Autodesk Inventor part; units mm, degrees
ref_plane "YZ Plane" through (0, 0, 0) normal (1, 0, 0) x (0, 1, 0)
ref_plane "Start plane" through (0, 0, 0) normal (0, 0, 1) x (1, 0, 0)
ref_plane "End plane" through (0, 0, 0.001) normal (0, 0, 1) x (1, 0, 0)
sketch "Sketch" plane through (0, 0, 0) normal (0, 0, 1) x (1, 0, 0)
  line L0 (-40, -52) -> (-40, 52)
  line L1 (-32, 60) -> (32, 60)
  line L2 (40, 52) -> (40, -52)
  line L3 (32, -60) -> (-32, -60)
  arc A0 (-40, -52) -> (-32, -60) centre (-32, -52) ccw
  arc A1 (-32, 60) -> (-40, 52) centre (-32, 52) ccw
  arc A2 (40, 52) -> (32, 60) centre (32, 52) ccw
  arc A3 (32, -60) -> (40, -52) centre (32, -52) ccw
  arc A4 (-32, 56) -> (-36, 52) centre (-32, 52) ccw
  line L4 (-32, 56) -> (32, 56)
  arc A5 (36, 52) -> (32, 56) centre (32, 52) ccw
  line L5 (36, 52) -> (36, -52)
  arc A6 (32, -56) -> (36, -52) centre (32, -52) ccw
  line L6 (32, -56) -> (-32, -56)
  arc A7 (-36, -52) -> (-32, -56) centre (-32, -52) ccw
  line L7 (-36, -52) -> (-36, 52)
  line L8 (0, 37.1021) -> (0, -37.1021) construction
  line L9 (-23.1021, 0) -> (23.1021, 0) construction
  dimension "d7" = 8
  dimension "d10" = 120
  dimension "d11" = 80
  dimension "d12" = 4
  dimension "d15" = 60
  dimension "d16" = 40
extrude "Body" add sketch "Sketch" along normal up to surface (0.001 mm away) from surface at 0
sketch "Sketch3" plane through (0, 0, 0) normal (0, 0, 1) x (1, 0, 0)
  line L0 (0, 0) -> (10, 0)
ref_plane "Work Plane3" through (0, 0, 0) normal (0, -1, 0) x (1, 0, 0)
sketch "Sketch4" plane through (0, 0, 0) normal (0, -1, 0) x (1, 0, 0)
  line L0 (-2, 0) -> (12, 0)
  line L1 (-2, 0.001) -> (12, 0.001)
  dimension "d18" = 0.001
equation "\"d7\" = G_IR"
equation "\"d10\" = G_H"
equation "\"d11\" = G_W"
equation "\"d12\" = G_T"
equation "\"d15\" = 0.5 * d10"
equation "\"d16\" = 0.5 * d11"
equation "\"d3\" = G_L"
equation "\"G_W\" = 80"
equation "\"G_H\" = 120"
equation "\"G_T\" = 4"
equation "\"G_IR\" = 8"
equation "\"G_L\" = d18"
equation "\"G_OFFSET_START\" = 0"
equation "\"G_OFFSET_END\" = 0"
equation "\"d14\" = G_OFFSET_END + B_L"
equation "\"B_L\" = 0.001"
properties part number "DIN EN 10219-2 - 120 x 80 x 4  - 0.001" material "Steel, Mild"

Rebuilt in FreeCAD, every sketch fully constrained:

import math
import FreeCAD as App
import Part
import Sketcher

V = App.Vector
Q = App.Units.Quantity

doc = App.newDocument("Part")
body = doc.addObject("PartDesign::Body", "Body")

sketch1 = body.newObject("Sketcher::SketchObject", "Sketch")
sketch1.AttachmentSupport = (doc.getObject("XY_Plane"), [""])
sketch1.MapMode = "FlatFace"
sketch1.addGeometry([
    Part.LineSegment(V(-40, 52, 0), V(-40, -52, 0)),
    Part.ArcOfCircle(Part.Circle(V(-32, -52, 0), V(0, 0, 1), 8), math.radians(180), math.radians(270)),
    Part.LineSegment(V(-32, -60, 0), V(32, -60, 0)),
    Part.ArcOfCircle(Part.Circle(V(32, -52, 0), V(0, 0, 1), 8), math.radians(-90), math.radians(0)),
    Part.LineSegment(V(40, -52, 0), V(40, 52, 0)),
    Part.ArcOfCircle(Part.Circle(V(32, 52, 0), V(0, 0, 1), 8), math.radians(0), math.radians(90)),
    Part.LineSegment(V(32, 60, 0), V(-32, 60, 0)),
    Part.ArcOfCircle(Part.Circle(V(-32, 52, 0), V(0, 0, 1), 8), math.radians(90), math.radians(180)),
    Part.ArcOfCircle(Part.Circle(V(-32, 52, 0), V(0, 0, 1), 4), math.radians(90), math.radians(180)),
    Part.LineSegment(V(-32, 56, 0), V(32, 56, 0)),
    Part.ArcOfCircle(Part.Circle(V(32, 52, 0), V(0, 0, 1), 4), math.radians(0), math.radians(90)),
    Part.LineSegment(V(36, 52, 0), V(36, -52, 0)),
    Part.ArcOfCircle(Part.Circle(V(32, -52, 0), V(0, 0, 1), 4), math.radians(-90), math.radians(0)),
    Part.LineSegment(V(32, -56, 0), V(-32, -56, 0)),
    Part.ArcOfCircle(Part.Circle(V(-32, -52, 0), V(0, 0, 1), 4), math.radians(180), math.radians(270)),
    Part.LineSegment(V(-36, -52, 0), V(-36, 52, 0)),
], False)
sketch1.addConstraint([
    Sketcher.Constraint("Tangent", 0, 2, 1, 1),
    Sketcher.Constraint("Tangent", 1, 2, 2, 1),
    Sketcher.Constraint("Tangent", 2, 2, 3, 1),
    Sketcher.Constraint("Tangent", 3, 2, 4, 1),
    Sketcher.Constraint("Tangent", 4, 2, 5, 1),
    Sketcher.Constraint("Tangent", 5, 2, 6, 1),
    Sketcher.Constraint("Tangent", 6, 2, 7, 1),
    Sketcher.Constraint("Tangent", 7, 2, 0, 1),
    Sketcher.Constraint("Tangent", 8, 1, 9, 1),
    Sketcher.Constraint("Tangent", 9, 2, 10, 2),
    Sketcher.Constraint("Tangent", 10, 1, 11, 1),
    Sketcher.Constraint("Tangent", 11, 2, 12, 2),
    Sketcher.Constraint("Tangent", 12, 1, 13, 1),
    Sketcher.Constraint("Tangent", 13, 2, 14, 2),
    Sketcher.Constraint("Tangent", 14, 1, 15, 1),
    Sketcher.Constraint("Tangent", 15, 2, 8, 2),
    Sketcher.Constraint("Vertical", 0),
    Sketcher.Constraint("Horizontal", 2),
    Sketcher.Constraint("Vertical", 4),
    Sketcher.Constraint("Horizontal", 6),
    Sketcher.Constraint("Horizontal", 9),
    Sketcher.Constraint("Vertical", 11),
    Sketcher.Constraint("Horizontal", 13),
    Sketcher.Constraint("Vertical", 15),
    Sketcher.Constraint("Coincident", 8, 3, 7, 3),
    Sketcher.Constraint("Coincident", 10, 3, 5, 3),
    Sketcher.Constraint("Coincident", 12, 3, 3, 3),
    Sketcher.Constraint("Equal", 1, 3),
    Sketcher.Constraint("Equal", 3, 5),
    Sketcher.Constraint("Equal", 5, 7),
    Sketcher.Constraint("Equal", 12, 14),
    Sketcher.Constraint("Symmetric", 1, 3, 5, 3, -1, 1),
    Sketcher.Constraint("Radius", 1, Q("8 mm")),
    Sketcher.Constraint("Radius", 8, Q("4 mm")),
    Sketcher.Constraint("DistanceX", 0, 2, -1, 1, Q("40 mm")),
    Sketcher.Constraint("DistanceY", 1, 2, -1, 1, Q("60 mm")),
])
pad1 = body.newObject("PartDesign::Pad", "Pad")
pad1.Profile = sketch1
pad1.Length = 0.001

doc.recompute()
